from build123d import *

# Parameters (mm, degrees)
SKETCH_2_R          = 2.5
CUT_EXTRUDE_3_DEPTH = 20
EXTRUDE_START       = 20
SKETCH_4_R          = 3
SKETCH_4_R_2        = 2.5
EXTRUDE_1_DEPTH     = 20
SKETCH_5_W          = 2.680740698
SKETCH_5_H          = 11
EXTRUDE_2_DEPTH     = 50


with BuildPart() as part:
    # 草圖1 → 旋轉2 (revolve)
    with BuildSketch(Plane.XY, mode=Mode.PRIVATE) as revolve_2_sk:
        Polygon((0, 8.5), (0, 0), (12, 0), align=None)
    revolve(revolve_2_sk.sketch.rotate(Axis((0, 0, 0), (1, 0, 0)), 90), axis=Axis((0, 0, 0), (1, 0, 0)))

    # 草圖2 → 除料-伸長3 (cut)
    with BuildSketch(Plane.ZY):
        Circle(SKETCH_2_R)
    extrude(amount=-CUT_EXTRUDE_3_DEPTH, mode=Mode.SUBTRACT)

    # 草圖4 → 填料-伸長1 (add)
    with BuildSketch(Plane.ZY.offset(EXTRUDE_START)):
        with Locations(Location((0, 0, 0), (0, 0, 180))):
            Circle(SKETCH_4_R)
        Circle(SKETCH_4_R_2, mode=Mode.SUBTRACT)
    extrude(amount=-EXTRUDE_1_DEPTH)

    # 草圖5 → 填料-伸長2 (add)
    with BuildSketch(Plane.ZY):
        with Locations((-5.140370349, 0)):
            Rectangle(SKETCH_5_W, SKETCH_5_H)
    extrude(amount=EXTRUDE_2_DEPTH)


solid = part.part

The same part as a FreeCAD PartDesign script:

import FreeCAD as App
import Part
import Sketcher
from FreeCAD import Vector

doc = App.newDocument("Part")
body = doc.addObject("PartDesign::Body", "Body")

# Sketch on XY plane
sketch1 = body.newObject("Sketcher::SketchObject", "Sketch")
sketch1.AttachmentSupport = (doc.getObject("XY_Plane"), [""])
sketch1.MapMode = "FlatFace"
sketch1.addGeometry([
    Part.LineSegment(Vector(0, 8, 0), Vector(0, 0, 0)),
    Part.LineSegment(Vector(0, 0, 0), Vector(12, 0, 0)),
    Part.LineSegment(Vector(12, 0, 0), Vector(0, 8, 0)),
], False)
sketch1.addConstraint([
    Sketcher.Constraint("Coincident", 0, 2, 1, 1),
    Sketcher.Constraint("Coincident", 1, 2, 2, 1),
    Sketcher.Constraint("Coincident", 2, 2, 0, 1),
    Sketcher.Constraint("Vertical", 0),
    Sketcher.Constraint("Horizontal", 1),
    Sketcher.Constraint("Coincident", 0, 2, -1, 1),
    Sketcher.Constraint("DistanceX", 1, 1, 1, 2, 12.0),
    Sketcher.Constraint("DistanceY", 0, 2, 0, 1, 8.5),
])
revolution = body.newObject("PartDesign::Revolution", "Revolution")
revolution.Profile = sketch1
revolution.ReferenceAxis = (sketch1, ["H_Axis"])
revolution.Angle = 360

# Sketch on YZ plane
sketch2 = body.newObject("Sketcher::SketchObject", "Sketch001")
sketch2.AttachmentSupport = (doc.getObject("YZ_Plane"), [""])
sketch2.MapMode = "FlatFace"
sketch2.addGeometry(Part.Circle(Vector(0, 0, 0), Vector(0, 0, 1), 2.5), False)
sketch2.addConstraint([
    Sketcher.Constraint("Coincident", 0, 3, -1, 1),
    Sketcher.Constraint("Diameter", 0, 5.0),
])
pocket1 = body.newObject("PartDesign::Pocket", "Pocket")
pocket1.Profile = sketch2
pocket1.Length = 20
pocket1.Reversed = True

# Sketch on YZ plane
sketch3 = body.newObject("Sketcher::SketchObject", "Sketch002")
sketch3.AttachmentSupport = (doc.getObject("YZ_Plane"), [""])
sketch3.MapMode = "FlatFace"
sketch3.AttachmentOffset = App.Placement(Vector(0, 0, -20), App.Rotation())
sketch3.addGeometry([
    Part.Circle(Vector(0, 0, 0), Vector(0, 0, 1), 3),
    Part.Circle(Vector(0, 0, 0), Vector(0, 0, 1), 2.5),
], False)
sketch3.addConstraint([
    Sketcher.Constraint("Coincident", 0, 3, -1, 1),
    Sketcher.Constraint("Coincident", 1, 3, -1, 1),
    Sketcher.Constraint("Diameter", 0, 6.0),
    Sketcher.Constraint("Diameter", 1, 5.0),
])
pad1 = body.newObject("PartDesign::Pad", "Pad")
pad1.Profile = sketch3
pad1.Length = 20

# Sketch on YZ plane
sketch4 = body.newObject("Sketcher::SketchObject", "Sketch003")
sketch4.AttachmentSupport = (doc.getObject("YZ_Plane"), [""])
sketch4.MapMode = "FlatFace"
sketch4.addGeometry([
    Part.LineSegment(Vector(5.5, -6.5, 0), Vector(-5.5, -6.5, 0)),
    Part.LineSegment(Vector(-5.5, -6.5, 0), Vector(-5.5, -3.8, 0)),
    Part.LineSegment(Vector(-5.5, -3.8, 0), Vector(5.5, -3.8, 0)),
    Part.LineSegment(Vector(5.5, -3.8, 0), Vector(5.5, -6.5, 0)),
], False)
sketch4.addConstraint([
    Sketcher.Constraint("Coincident", 0, 2, 1, 1),
    Sketcher.Constraint("Coincident", 1, 2, 2, 1),
    Sketcher.Constraint("Coincident", 2, 2, 3, 1),
    Sketcher.Constraint("Coincident", 3, 2, 0, 1),
    Sketcher.Constraint("Horizontal", 0),
    Sketcher.Constraint("Vertical", 1),
    Sketcher.Constraint("Horizontal", 2),
    Sketcher.Constraint("Vertical", 3),
    Sketcher.Constraint("DistanceX", 0, 2, 0, 1, 11.0),
    Sketcher.Constraint("DistanceX", 0, 2, -1, 1, 5.5),
    Sketcher.Constraint("DistanceY", 1, 2, -1, 1, 3.8),
    Sketcher.Constraint("DistanceY", 1, 1, 1, 2, 2.680741),
])
pad2 = body.newObject("PartDesign::Pad", "Pad001")
pad2.Profile = sketch4
pad2.Length = 50
pad2.Reversed = True

doc.recompute()
